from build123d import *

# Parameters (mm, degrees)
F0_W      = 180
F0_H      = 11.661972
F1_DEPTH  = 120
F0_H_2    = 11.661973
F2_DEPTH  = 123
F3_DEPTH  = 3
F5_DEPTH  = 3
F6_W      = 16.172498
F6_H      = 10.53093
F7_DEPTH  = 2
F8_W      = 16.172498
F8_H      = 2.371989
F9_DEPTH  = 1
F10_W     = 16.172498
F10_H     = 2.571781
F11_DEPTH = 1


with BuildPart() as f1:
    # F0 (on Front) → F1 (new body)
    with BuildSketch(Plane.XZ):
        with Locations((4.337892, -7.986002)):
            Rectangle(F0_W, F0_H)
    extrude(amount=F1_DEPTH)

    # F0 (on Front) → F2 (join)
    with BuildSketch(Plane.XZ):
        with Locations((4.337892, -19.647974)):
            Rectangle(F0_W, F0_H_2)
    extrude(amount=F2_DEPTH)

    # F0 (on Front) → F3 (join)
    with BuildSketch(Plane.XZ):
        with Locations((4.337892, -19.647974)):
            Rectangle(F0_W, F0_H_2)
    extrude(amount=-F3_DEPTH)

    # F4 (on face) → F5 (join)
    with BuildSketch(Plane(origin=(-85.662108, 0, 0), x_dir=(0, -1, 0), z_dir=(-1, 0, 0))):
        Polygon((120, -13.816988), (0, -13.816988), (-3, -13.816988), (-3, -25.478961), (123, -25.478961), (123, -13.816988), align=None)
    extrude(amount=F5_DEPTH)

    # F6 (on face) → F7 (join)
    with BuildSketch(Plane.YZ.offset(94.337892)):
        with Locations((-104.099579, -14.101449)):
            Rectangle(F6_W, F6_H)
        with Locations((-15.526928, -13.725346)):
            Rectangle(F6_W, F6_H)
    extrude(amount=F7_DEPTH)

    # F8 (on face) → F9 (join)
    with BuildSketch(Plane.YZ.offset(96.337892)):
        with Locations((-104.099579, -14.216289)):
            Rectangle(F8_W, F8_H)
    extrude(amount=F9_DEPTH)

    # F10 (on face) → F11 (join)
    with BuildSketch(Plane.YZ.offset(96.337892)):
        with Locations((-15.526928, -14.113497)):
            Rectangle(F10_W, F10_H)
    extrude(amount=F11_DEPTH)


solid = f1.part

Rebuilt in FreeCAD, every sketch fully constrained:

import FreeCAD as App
import Part
import Sketcher
from FreeCAD import Vector


def add_polygon(sketch, points):
    """Adds a closed chain of lines whose ends are joined by coincident constraints."""
    first, n = sketch.GeometryCount, len(points)
    for a, b in zip(points, points[1:] + points[:1]):
        sketch.addGeometry(Part.LineSegment(App.Vector(*a, 0), App.Vector(*b, 0)), False)
    for i in range(n):
        sketch.addConstraint(Sketcher.Constraint("Coincident", first + i, 2, first + (i + 1) % n, 1))

doc = App.newDocument("Part")
body = doc.addObject("PartDesign::Body", "Body")

sketch1 = body.newObject("Sketcher::SketchObject", "Sketch")
sketch1.AttachmentSupport = (doc.getObject("XZ_Plane"), [""])
sketch1.MapMode = "FlatFace"
add_polygon(sketch1, [(-85.662108, -2.155016), (-85.662108, -13.816988), (94.337892, -13.816988), (94.337892, -2.155016)])
sketch1.addConstraint([
    Sketcher.Constraint("Vertical", 0),
    Sketcher.Constraint("Horizontal", 1),
    Sketcher.Constraint("Vertical", 2),
    Sketcher.Constraint("Horizontal", 3),
    Sketcher.Constraint("DistanceX", 1, 1, 1, 2, 180.0),
    Sketcher.Constraint("DistanceY", 0, 2, 0, 1, 11.661972),
    Sketcher.Constraint("DistanceX", 0, 2, -1, 1, 85.662108),
    Sketcher.Constraint("DistanceY", 0, 2, -1, 1, 13.816988),
])
pad1 = body.newObject("PartDesign::Pad", "Pad")
pad1.Profile = sketch1
pad1.Length = 120

sketch2 = body.newObject("Sketcher::SketchObject", "Sketch001")
sketch2.AttachmentSupport = (doc.getObject("XZ_Plane"), [""])
sketch2.MapMode = "FlatFace"
add_polygon(sketch2, [(-85.662108, -13.816987), (-85.662108, -25.47896), (94.337892, -25.47896), (94.337892, -13.816987)])
sketch2.addConstraint([
    Sketcher.Constraint("Vertical", 0),
    Sketcher.Constraint("Horizontal", 1),
    Sketcher.Constraint("Vertical", 2),
    Sketcher.Constraint("Horizontal", 3),
    Sketcher.Constraint("DistanceX", 1, 1, 1, 2, 180.0),
    Sketcher.Constraint("DistanceY", 0, 2, 0, 1, 11.661973),
    Sketcher.Constraint("DistanceX", 0, 2, -1, 1, 85.662108),
    Sketcher.Constraint("DistanceY", 0, 2, -1, 1, 25.47896),
])
pad2 = body.newObject("PartDesign::Pad", "Pad001")
pad2.Profile = sketch2
pad2.Length = 123

sketch3 = body.newObject("Sketcher::SketchObject", "Sketch002")
sketch3.AttachmentSupport = (doc.getObject("XZ_Plane"), [""])
sketch3.MapMode = "FlatFace"
add_polygon(sketch3, [(-85.662108, -13.816987), (-85.662108, -25.47896), (94.337892, -25.47896), (94.337892, -13.816987)])
sketch3.addConstraint([
    Sketcher.Constraint("Vertical", 0),
    Sketcher.Constraint("Horizontal", 1),
    Sketcher.Constraint("Vertical", 2),
    Sketcher.Constraint("Horizontal", 3),
    Sketcher.Constraint("DistanceX", 1, 1, 1, 2, 180.0),
    Sketcher.Constraint("DistanceY", 0, 2, 0, 1, 11.661973),
    Sketcher.Constraint("DistanceX", 0, 2, -1, 1, 85.662108),
    Sketcher.Constraint("DistanceY", 0, 2, -1, 1, 25.47896),
])
pad3 = body.newObject("PartDesign::Pad", "Pad002")
pad3.Profile = sketch3
pad3.Length = 3
pad3.Reversed = True

sketch4 = body.newObject("Sketcher::SketchObject", "Sketch003")
sketch4.AttachmentSupport = (doc.getObject("YZ_Plane"), [""])
sketch4.MapMode = "FlatFace"
sketch4.AttachmentOffset = App.Placement(Vector(0, 0, -85.662108), App.Rotation())
add_polygon(sketch4, [(3, -13.816988), (3, -25.478961), (-123, -25.478961), (-123, -13.816988)])
sketch4.addConstraint([
    Sketcher.Constraint("Vertical", 0),
    Sketcher.Constraint("Horizontal", 1),
    Sketcher.Constraint("Vertical", 2),
    Sketcher.Constraint("Horizontal", 3),
    Sketcher.Constraint("DistanceX", 1, 2, 1, 1, 126.0),
    Sketcher.Constraint("DistanceX", -1, 1, 0, 2, 3.0),
    Sketcher.Constraint("DistanceY", 0, 2, 0, 1, 11.661973),
    Sketcher.Constraint("DistanceY", 0, 2, -1, 1, 25.478961),
])
pad4 = body.newObject("PartDesign::Pad", "Pad003")
pad4.Profile = sketch4
pad4.Length = 3
pad4.Reversed = True

sketch5 = body.newObject("Sketcher::SketchObject", "Sketch004")
sketch5.AttachmentSupport = (doc.getObject("YZ_Plane"), [""])
sketch5.MapMode = "FlatFace"
sketch5.AttachmentOffset = App.Placement(Vector(0, 0, 94.337892), App.Rotation())
add_polygon(sketch5, [(-112.185828, -8.835984), (-112.185828, -19.366914), (-96.01333, -19.366914), (-96.01333, -8.835984)])
add_polygon(sketch5, [(-23.613177, -8.459881), (-23.613177, -18.990811), (-7.440679, -18.990811), (-7.440679, -8.459881)])
sketch5.addConstraint([
    Sketcher.Constraint("Vertical", 0),
    Sketcher.Constraint("Horizontal", 1),
    Sketcher.Constraint("Vertical", 2),
    Sketcher.Constraint("Horizontal", 3),
    Sketcher.Constraint("Vertical", 4),
    Sketcher.Constraint("Horizontal", 5),
    Sketcher.Constraint("Vertical", 6),
    Sketcher.Constraint("Horizontal", 7),
    Sketcher.Constraint("Equal", 3, 5),
    Sketcher.Constraint("Equal", 2, 4),
    Sketcher.Constraint("DistanceX", 1, 1, 1, 2, 16.172498),
    Sketcher.Constraint("DistanceY", 0, 2, 0, 1, 10.53093),
    Sketcher.Constraint("DistanceX", 0, 2, -1, 1, 112.185828),
    Sketcher.Constraint("DistanceY", 4, 2, -1, 1, 18.990811),
    Sketcher.Constraint("DistanceX", 5, 2, -1, 1, 7.440679),
    Sketcher.Constraint("DistanceY", 0, 2, -1, 1, 19.366914),
])
pad5 = body.newObject("PartDesign::Pad", "Pad004")
pad5.Profile = sketch5
pad5.Length = 2

sketch6 = body.newObject("Sketcher::SketchObject", "Sketch005")
sketch6.AttachmentSupport = (doc.getObject("YZ_Plane"), [""])
sketch6.MapMode = "FlatFace"
sketch6.AttachmentOffset = App.Placement(Vector(0, 0, 96.337892), App.Rotation())
add_polygon(sketch6, [(-112.185828, -13.030295), (-112.185828, -15.402283), (-96.01333, -15.402283), (-96.01333, -13.030295)])
sketch6.addConstraint([
    Sketcher.Constraint("Vertical", 0),
    Sketcher.Constraint("Horizontal", 1),
    Sketcher.Constraint("Vertical", 2),
    Sketcher.Constraint("Horizontal", 3),
    Sketcher.Constraint("DistanceX", 1, 1, 1, 2, 16.172498),
    Sketcher.Constraint("DistanceY", 0, 2, 0, 1, 2.371989),
    Sketcher.Constraint("DistanceX", 0, 2, -1, 1, 112.185828),
    Sketcher.Constraint("DistanceY", 0, 2, -1, 1, 15.402283),
])
pad6 = body.newObject("PartDesign::Pad", "Pad005")
pad6.Profile = sketch6
pad6.Length = 1

sketch7 = body.newObject("Sketcher::SketchObject", "Sketch006")
sketch7.AttachmentSupport = (doc.getObject("YZ_Plane"), [""])
sketch7.MapMode = "FlatFace"
sketch7.AttachmentOffset = App.Placement(Vector(0, 0, 96.337892), App.Rotation())
add_polygon(sketch7, [(-23.613177, -12.827606), (-23.613177, -15.399387), (-7.440679, -15.399387), (-7.440679, -12.827606)])
sketch7.addConstraint([
    Sketcher.Constraint("Vertical", 0),
    Sketcher.Constraint("Horizontal", 1),
    Sketcher.Constraint("Vertical", 2),
    Sketcher.Constraint("Horizontal", 3),
    Sketcher.Constraint("DistanceX", 1, 1, 1, 2, 16.172498),
    Sketcher.Constraint("DistanceY", 0, 2, 0, 1, 2.571781),
    Sketcher.Constraint("DistanceX", 1, 2, -1, 1, 7.440679),
    Sketcher.Constraint("DistanceY", 0, 2, -1, 1, 15.399387),
])
pad7 = body.newObject("PartDesign::Pad", "Pad006")
pad7.Profile = sketch7
pad7.Length = 1

doc.recompute()
